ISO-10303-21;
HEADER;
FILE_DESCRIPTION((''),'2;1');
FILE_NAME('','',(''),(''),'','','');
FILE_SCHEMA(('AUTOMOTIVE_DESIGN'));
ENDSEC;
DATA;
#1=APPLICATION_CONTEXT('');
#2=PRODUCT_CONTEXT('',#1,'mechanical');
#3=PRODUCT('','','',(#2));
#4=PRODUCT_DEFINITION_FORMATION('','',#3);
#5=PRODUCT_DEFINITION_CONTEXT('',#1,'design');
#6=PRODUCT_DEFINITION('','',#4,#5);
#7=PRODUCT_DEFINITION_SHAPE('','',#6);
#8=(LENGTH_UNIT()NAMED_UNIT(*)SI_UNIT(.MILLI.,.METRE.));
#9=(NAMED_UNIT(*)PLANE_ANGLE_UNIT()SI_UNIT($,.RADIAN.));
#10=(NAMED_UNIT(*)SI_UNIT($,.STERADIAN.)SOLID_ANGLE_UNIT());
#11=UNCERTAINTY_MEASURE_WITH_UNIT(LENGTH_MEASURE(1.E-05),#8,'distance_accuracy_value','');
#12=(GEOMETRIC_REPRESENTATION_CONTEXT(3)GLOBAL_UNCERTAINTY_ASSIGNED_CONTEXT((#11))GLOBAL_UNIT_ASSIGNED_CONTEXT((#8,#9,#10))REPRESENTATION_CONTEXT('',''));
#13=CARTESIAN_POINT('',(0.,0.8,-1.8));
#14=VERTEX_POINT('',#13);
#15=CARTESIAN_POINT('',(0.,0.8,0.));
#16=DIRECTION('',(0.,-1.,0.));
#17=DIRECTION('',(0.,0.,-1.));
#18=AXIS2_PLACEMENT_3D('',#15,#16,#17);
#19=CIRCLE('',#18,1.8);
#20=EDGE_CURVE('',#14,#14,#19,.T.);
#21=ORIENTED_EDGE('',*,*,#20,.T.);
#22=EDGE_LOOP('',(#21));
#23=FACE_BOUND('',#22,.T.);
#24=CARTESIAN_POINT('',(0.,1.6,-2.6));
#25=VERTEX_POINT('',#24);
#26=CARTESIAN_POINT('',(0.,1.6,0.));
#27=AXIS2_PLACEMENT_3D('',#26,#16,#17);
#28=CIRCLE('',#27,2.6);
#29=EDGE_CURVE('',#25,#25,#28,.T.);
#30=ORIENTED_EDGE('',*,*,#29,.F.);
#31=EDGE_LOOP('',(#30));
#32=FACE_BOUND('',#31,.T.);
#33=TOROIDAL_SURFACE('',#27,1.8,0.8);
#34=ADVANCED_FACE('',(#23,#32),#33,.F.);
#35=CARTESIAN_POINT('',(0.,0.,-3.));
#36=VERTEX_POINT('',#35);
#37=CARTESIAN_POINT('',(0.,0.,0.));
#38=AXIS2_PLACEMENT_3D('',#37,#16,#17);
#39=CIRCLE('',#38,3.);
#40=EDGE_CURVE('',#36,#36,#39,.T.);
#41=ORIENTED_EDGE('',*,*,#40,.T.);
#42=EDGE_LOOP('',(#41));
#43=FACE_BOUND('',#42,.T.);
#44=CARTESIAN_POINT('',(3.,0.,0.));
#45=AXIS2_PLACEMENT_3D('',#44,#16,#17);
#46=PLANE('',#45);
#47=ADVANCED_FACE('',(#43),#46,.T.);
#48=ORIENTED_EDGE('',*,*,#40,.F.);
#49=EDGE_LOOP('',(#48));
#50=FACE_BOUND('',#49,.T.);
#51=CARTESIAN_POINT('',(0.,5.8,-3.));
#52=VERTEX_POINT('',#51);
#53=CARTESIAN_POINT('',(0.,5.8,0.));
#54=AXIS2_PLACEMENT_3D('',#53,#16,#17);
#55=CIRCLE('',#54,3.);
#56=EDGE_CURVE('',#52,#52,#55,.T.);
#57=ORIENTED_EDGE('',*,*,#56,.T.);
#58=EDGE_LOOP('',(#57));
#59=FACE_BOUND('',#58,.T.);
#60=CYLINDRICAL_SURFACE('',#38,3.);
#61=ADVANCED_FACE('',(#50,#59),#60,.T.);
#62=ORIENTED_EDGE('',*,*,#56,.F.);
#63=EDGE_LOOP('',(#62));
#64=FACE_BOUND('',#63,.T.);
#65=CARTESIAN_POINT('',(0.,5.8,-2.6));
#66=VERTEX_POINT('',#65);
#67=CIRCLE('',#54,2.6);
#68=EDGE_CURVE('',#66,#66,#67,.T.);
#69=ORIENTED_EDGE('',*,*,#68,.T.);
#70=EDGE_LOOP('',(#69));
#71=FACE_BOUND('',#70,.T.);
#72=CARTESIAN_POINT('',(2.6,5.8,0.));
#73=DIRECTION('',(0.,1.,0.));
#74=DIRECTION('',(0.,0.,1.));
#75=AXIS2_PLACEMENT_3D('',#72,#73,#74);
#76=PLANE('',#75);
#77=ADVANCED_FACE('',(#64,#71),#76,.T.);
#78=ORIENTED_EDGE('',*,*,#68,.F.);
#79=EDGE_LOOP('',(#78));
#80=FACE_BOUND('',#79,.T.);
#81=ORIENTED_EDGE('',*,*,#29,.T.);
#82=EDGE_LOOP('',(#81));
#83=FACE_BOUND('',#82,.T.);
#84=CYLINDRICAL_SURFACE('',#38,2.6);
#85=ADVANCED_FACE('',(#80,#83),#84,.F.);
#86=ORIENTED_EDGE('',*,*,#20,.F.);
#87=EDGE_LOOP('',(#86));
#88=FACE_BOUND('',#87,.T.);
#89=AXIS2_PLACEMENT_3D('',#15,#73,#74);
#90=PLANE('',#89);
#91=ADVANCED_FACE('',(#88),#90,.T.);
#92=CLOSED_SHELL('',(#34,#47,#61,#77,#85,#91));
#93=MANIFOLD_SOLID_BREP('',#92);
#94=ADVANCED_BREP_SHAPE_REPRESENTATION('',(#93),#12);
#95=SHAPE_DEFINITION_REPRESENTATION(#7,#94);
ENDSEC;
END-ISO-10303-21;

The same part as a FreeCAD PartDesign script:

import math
import FreeCAD as App
import Part
import Sketcher
Q = App.Units.Quantity

doc = App.newDocument("Part")
body = doc.addObject("PartDesign::Body", "Body")

# Sketch on XY plane
sketch1 = body.newObject("Sketcher::SketchObject", "Sketch")
sketch1.AttachmentSupport = (doc.getObject("XY_Plane"), [""])
sketch1.MapMode = "FlatFace"
sketch1.addGeometry([
    Part.LineSegment(App.Vector(0, 0.8, 0), App.Vector(0, 0, 0)),  # 0
    Part.LineSegment(App.Vector(0, 0, 0), App.Vector(3, 0, 0)),  # 1
    Part.LineSegment(App.Vector(3, 0, 0), App.Vector(3, 5.8, 0)),  # 2
    Part.LineSegment(App.Vector(3, 5.8, 0), App.Vector(2.6, 5.8, 0)),  # 3
    Part.LineSegment(App.Vector(2.6, 5.8, 0), App.Vector(2.6, 1.6, 0)),  # 4
    Part.ArcOfCircle(Part.Circle(App.Vector(1.8, 1.6, 0), App.Vector(0, 0, 1), 0.8), math.radians(-90), math.radians(0)),  # 5
    Part.LineSegment(App.Vector(1.8, 0.8, 0), App.Vector(0, 0.8, 0)),  # 6
], False)
sketch1.addConstraint([
    Sketcher.Constraint("Coincident", 0, 2, 1, 1),
    Sketcher.Constraint("Coincident", 1, 2, 2, 1),
    Sketcher.Constraint("Coincident", 2, 2, 3, 1),
    Sketcher.Constraint("Coincident", 3, 2, 4, 1),
    Sketcher.Constraint("Tangent", 4, 2, 5, 2),
    Sketcher.Constraint("Tangent", 5, 1, 6, 1),
    Sketcher.Constraint("Coincident", 6, 2, 0, 1),
    Sketcher.Constraint("Vertical", 0),
    Sketcher.Constraint("Horizontal", 1),
    Sketcher.Constraint("Vertical", 2),
    Sketcher.Constraint("Horizontal", 3),
    Sketcher.Constraint("Vertical", 4),
    Sketcher.Constraint("Horizontal", 6),
    Sketcher.Constraint("Coincident", 0, 2, -1, 1),
    Sketcher.Constraint("Radius", 5, Q("0.8 mm")),
    Sketcher.Constraint("DistanceX", 1, 1, 1, 2, Q("3 mm")),
    Sketcher.Constraint("DistanceX", 3, 2, 3, 1, Q("0.4 mm")),
    Sketcher.Constraint("DistanceY", 0, 2, 0, 1, Q("0.8 mm")),
    Sketcher.Constraint("DistanceY", 2, 1, 2, 2, Q("5.8 mm")),
])
revolution = body.newObject("PartDesign::Revolution", "Revolution")
revolution.Profile = sketch1
revolution.ReferenceAxis = (sketch1, ["V_Axis"])
revolution.Angle = 360

doc.recompute()
